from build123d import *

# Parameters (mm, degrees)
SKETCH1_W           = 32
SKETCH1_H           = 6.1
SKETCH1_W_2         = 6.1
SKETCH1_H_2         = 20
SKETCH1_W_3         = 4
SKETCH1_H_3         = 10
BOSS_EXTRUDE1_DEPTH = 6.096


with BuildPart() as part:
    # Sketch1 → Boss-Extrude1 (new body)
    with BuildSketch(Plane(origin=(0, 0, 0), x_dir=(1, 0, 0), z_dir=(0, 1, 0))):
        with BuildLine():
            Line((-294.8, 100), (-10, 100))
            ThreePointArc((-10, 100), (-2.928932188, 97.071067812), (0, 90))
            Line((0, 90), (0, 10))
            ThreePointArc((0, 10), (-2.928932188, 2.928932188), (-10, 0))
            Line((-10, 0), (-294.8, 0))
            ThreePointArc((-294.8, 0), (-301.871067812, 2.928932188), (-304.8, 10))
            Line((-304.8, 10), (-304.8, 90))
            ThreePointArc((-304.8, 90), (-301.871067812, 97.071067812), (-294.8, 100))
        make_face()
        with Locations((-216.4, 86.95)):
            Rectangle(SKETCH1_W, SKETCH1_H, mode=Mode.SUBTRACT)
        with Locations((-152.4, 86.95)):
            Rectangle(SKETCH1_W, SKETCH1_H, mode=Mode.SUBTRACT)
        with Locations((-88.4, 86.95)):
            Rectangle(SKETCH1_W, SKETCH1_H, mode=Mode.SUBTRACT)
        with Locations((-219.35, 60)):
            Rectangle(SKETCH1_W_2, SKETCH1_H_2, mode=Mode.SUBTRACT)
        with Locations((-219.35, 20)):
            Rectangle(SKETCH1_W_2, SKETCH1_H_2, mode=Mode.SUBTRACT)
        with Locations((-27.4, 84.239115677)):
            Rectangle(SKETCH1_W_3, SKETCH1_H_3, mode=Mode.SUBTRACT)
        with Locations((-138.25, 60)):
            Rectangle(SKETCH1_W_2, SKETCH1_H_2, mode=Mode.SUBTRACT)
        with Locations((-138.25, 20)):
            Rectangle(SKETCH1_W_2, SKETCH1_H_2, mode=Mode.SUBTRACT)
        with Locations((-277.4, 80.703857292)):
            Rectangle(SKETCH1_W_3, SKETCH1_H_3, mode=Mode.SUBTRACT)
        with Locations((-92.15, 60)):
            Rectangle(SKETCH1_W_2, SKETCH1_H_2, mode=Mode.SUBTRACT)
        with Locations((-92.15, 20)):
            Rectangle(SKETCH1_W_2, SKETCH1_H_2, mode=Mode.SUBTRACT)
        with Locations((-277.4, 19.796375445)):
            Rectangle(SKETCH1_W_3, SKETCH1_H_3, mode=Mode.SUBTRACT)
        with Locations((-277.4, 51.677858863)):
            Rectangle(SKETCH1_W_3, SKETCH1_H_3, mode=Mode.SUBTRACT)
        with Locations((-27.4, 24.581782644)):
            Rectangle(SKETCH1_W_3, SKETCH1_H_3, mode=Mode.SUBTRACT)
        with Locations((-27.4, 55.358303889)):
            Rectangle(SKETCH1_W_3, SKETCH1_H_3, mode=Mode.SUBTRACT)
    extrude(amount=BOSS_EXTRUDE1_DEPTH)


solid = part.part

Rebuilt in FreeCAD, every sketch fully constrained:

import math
import FreeCAD as App
import Part
import Sketcher
from FreeCAD import Vector


def add_polygon(sketch, points):
    """Adds a closed chain of lines whose ends are joined by coincident constraints."""
    first, n = sketch.GeometryCount, len(points)
    for a, b in zip(points, points[1:] + points[:1]):
        sketch.addGeometry(Part.LineSegment(App.Vector(*a, 0), App.Vector(*b, 0)), False)
    for i in range(n):
        sketch.addConstraint(Sketcher.Constraint("Coincident", first + i, 2, first + (i + 1) % n, 1))

doc = App.newDocument("Part")
body = doc.addObject("PartDesign::Body", "Body")

# Sketch on XZ plane
sketch1 = doc.addObject("Sketcher::SketchObject", "Sketch")
body.addObject(sketch1)
sketch1.AttachmentSupport = (doc.XZ_Plane, [""])
sketch1.MapMode = "FlatFace"
sketch1.addGeometry(Part.LineSegment(Vector(-10, -100, 0), Vector(-294.8, -100, 0)), False)  # 0
sketch1.addGeometry(Part.ArcOfCircle(Part.Circle(Vector(-294.8, -90, 0), Vector(0, 0, 1), 10), math.radians(180), math.radians(270)), False)  # 1
sketch1.addGeometry(Part.LineSegment(Vector(-304.8, -90, 0), Vector(-304.8, -10, 0)), False)  # 2
sketch1.addGeometry(Part.ArcOfCircle(Part.Circle(Vector(-294.8, -10, 0), Vector(0, 0, 1), 10), math.radians(90), math.radians(180)), False)  # 3
sketch1.addGeometry(Part.LineSegment(Vector(-294.8, 0, 0), Vector(-10, 0, 0)), False)  # 4
sketch1.addGeometry(Part.ArcOfCircle(Part.Circle(Vector(-10, -10, 0), Vector(0, 0, 1), 10), math.radians(0), math.radians(90)), False)  # 5
sketch1.addGeometry(Part.LineSegment(Vector(0, -10, 0), Vector(0, -90, 0)), False)  # 6
sketch1.addGeometry(Part.ArcOfCircle(Part.Circle(Vector(-10, -90, 0), Vector(0, 0, 1), 10), math.radians(-90), math.radians(0)), False)  # 7
add_polygon(sketch1, [(-29.4, -19.581783), (-29.4, -29.581783), (-25.4, -29.581783), (-25.4, -19.581783)])  # lines 8-11
add_polygon(sketch1, [(-95.2, -10), (-95.2, -30), (-89.1, -30), (-89.1, -10)])  # lines 12-15
add_polygon(sketch1, [(-141.3, -10), (-141.3, -30), (-135.2, -30), (-135.2, -10)])  # lines 16-19
add_polygon(sketch1, [(-279.4, -14.796375), (-279.4, -24.796375), (-275.4, -24.796375), (-275.4, -14.796375)])  # lines 20-23
add_polygon(sketch1, [(-222.4, -10), (-222.4, -30), (-216.3, -30), (-216.3, -10)])  # lines 24-27
add_polygon(sketch1, [(-29.4, -50.358304), (-29.4, -60.358304), (-25.4, -60.358304), (-25.4, -50.358304)])  # lines 28-31
add_polygon(sketch1, [(-95.2, -50), (-95.2, -70), (-89.1, -70), (-89.1, -50)])  # lines 32-35
add_polygon(sketch1, [(-141.3, -50), (-141.3, -70), (-135.2, -70), (-135.2, -50)])  # lines 36-39
add_polygon(sketch1, [(-29.4, -79.239116), (-29.4, -89.239116), (-25.4, -89.239116), (-25.4, -79.239116)])  # lines 40-43
add_polygon(sketch1, [(-104.4, -83.9), (-104.4, -90), (-72.4, -90), (-72.4, -83.9)])  # lines 44-47
add_polygon(sketch1, [(-279.4, -46.677859), (-279.4, -56.677859), (-275.4, -56.677859), (-275.4, -46.677859)])  # lines 48-51
add_polygon(sketch1, [(-222.4, -50), (-222.4, -70), (-216.3, -70), (-216.3, -50)])  # lines 52-55
add_polygon(sketch1, [(-168.4, -83.9), (-168.4, -90), (-136.4, -90), (-136.4, -83.9)])  # lines 56-59
add_polygon(sketch1, [(-232.4, -83.9), (-232.4, -90), (-200.4, -90), (-200.4, -83.9)])  # lines 60-63
add_polygon(sketch1, [(-279.4, -75.703857), (-279.4, -85.703857), (-275.4, -85.703857), (-275.4, -75.703857)])  # lines 64-67
sketch1.addConstraint(Sketcher.Constraint("Tangent", 0, 2, 1, 2))
sketch1.addConstraint(Sketcher.Constraint("Tangent", 1, 1, 2, 1))
sketch1.addConstraint(Sketcher.Constraint("Tangent", 2, 2, 3, 2))
sketch1.addConstraint(Sketcher.Constraint("Tangent", 3, 1, 4, 1))
sketch1.addConstraint(Sketcher.Constraint("Tangent", 4, 2, 5, 2))
sketch1.addConstraint(Sketcher.Constraint("Tangent", 5, 1, 6, 1))
sketch1.addConstraint(Sketcher.Constraint("Tangent", 6, 2, 7, 2))
sketch1.addConstraint(Sketcher.Constraint("Tangent", 7, 1, 0, 1))
sketch1.addConstraint(Sketcher.Constraint("Horizontal", 0))
sketch1.addConstraint(Sketcher.Constraint("Vertical", 2))
sketch1.addConstraint(Sketcher.Constraint("Horizontal", 4))
sketch1.addConstraint(Sketcher.Constraint("Vertical", 6))
sketch1.addConstraint(Sketcher.Constraint("Vertical", 8))
sketch1.addConstraint(Sketcher.Constraint("Horizontal", 9))
sketch1.addConstraint(Sketcher.Constraint("Vertical", 10))
sketch1.addConstraint(Sketcher.Constraint("Horizontal", 11))
sketch1.addConstraint(Sketcher.Constraint("Vertical", 12))
sketch1.addConstraint(Sketcher.Constraint("Horizontal", 13))
sketch1.addConstraint(Sketcher.Constraint("Vertical", 14))
sketch1.addConstraint(Sketcher.Constraint("Horizontal", 15))
sketch1.addConstraint(Sketcher.Constraint("Vertical", 16))
sketch1.addConstraint(Sketcher.Constraint("Horizontal", 17))
sketch1.addConstraint(Sketcher.Constraint("Vertical", 18))
sketch1.addConstraint(Sketcher.Constraint("Horizontal", 19))
sketch1.addConstraint(Sketcher.Constraint("Vertical", 20))
sketch1.addConstraint(Sketcher.Constraint("Horizontal", 21))
sketch1.addConstraint(Sketcher.Constraint("Vertical", 22))
sketch1.addConstraint(Sketcher.Constraint("Horizontal", 23))
sketch1.addConstraint(Sketcher.Constraint("Vertical", 24))
sketch1.addConstraint(Sketcher.Constraint("Horizontal", 25))
sketch1.addConstraint(Sketcher.Constraint("Vertical", 26))
sketch1.addConstraint(Sketcher.Constraint("Horizontal", 27))
sketch1.addConstraint(Sketcher.Constraint("Vertical", 28))
sketch1.addConstraint(Sketcher.Constraint("Horizontal", 29))
sketch1.addConstraint(Sketcher.Constraint("Vertical", 30))
sketch1.addConstraint(Sketcher.Constraint("Horizontal", 31))
sketch1.addConstraint(Sketcher.Constraint("Vertical", 32))
sketch1.addConstraint(Sketcher.Constraint("Horizontal", 33))
sketch1.addConstraint(Sketcher.Constraint("Vertical", 34))
sketch1.addConstraint(Sketcher.Constraint("Horizontal", 35))
sketch1.addConstraint(Sketcher.Constraint("Vertical", 36))
sketch1.addConstraint(Sketcher.Constraint("Horizontal", 37))
sketch1.addConstraint(Sketcher.Constraint("Vertical", 38))
sketch1.addConstraint(Sketcher.Constraint("Horizontal", 39))
sketch1.addConstraint(Sketcher.Constraint("Vertical", 40))
sketch1.addConstraint(Sketcher.Constraint("Horizontal", 41))
sketch1.addConstraint(Sketcher.Constraint("Vertical", 42))
sketch1.addConstraint(Sketcher.Constraint("Horizontal", 43))
sketch1.addConstraint(Sketcher.Constraint("Vertical", 44))
sketch1.addConstraint(Sketcher.Constraint("Horizontal", 45))
sketch1.addConstraint(Sketcher.Constraint("Vertical", 46))
sketch1.addConstraint(Sketcher.Constraint("Horizontal", 47))
sketch1.addConstraint(Sketcher.Constraint("Vertical", 48))
sketch1.addConstraint(Sketcher.Constraint("Horizontal", 49))
sketch1.addConstraint(Sketcher.Constraint("Vertical", 50))
sketch1.addConstraint(Sketcher.Constraint("Horizontal", 51))
sketch1.addConstraint(Sketcher.Constraint("Vertical", 52))
sketch1.addConstraint(Sketcher.Constraint("Horizontal", 53))
sketch1.addConstraint(Sketcher.Constraint("Vertical", 54))
sketch1.addConstraint(Sketcher.Constraint("Horizontal", 55))
sketch1.addConstraint(Sketcher.Constraint("Vertical", 56))
sketch1.addConstraint(Sketcher.Constraint("Horizontal", 57))
sketch1.addConstraint(Sketcher.Constraint("Vertical", 58))
sketch1.addConstraint(Sketcher.Constraint("Horizontal", 59))
sketch1.addConstraint(Sketcher.Constraint("Vertical", 60))
sketch1.addConstraint(Sketcher.Constraint("Horizontal", 61))
sketch1.addConstraint(Sketcher.Constraint("Vertical", 62))
sketch1.addConstraint(Sketcher.Constraint("Horizontal", 63))
sketch1.addConstraint(Sketcher.Constraint("Vertical", 64))
sketch1.addConstraint(Sketcher.Constraint("Horizontal", 65))
sketch1.addConstraint(Sketcher.Constraint("Vertical", 66))
sketch1.addConstraint(Sketcher.Constraint("Horizontal", 67))
sketch1.addConstraint(Sketcher.Constraint("Equal", 1, 3))
sketch1.addConstraint(Sketcher.Constraint("Equal", 3, 5))
sketch1.addConstraint(Sketcher.Constraint("Equal", 5, 7))
sketch1.addConstraint(Sketcher.Constraint("PointOnObject", 3, 1, -1))
sketch1.addConstraint(Sketcher.Constraint("PointOnObject", 5, 1, -2))
sketch1.addConstraint(Sketcher.Constraint("Horizontal", 5, 1, 14, 2))
sketch1.addConstraint(Sketcher.Constraint("Horizontal", 13, 2, 16, 2))
sketch1.addConstraint(Sketcher.Constraint("Horizontal", 15, 2, 18, 2))
sketch1.addConstraint(Sketcher.Constraint("Horizontal", 17, 2, 24, 2))
sketch1.addConstraint(Sketcher.Constraint("Horizontal", 19, 2, 26, 2))
sketch1.addConstraint(Sketcher.Constraint("Horizontal", 33, 2, 36, 2))
sketch1.addConstraint(Sketcher.Constraint("Horizontal", 35, 2, 38, 2))
sketch1.addConstraint(Sketcher.Constraint("Horizontal", 6, 2, 44, 2))
sketch1.addConstraint(Sketcher.Constraint("Horizontal", 37, 2, 52, 2))
sketch1.addConstraint(Sketcher.Constraint("Horizontal", 39, 2, 54, 2))
sketch1.addConstraint(Sketcher.Constraint("Horizontal", 45, 2, 56, 2))
sketch1.addConstraint(Sketcher.Constraint("Horizontal", 47, 2, 58, 2))
sketch1.addConstraint(Sketcher.Constraint("Horizontal", 57, 2, 60, 2))
sketch1.addConstraint(Sketcher.Constraint("Horizontal", 59, 2, 62, 2))
sketch1.addConstraint(Sketcher.Constraint("Vertical", 11, 2, 28, 2))
sketch1.addConstraint(Sketcher.Constraint("Vertical", 10, 2, 29, 2))
sketch1.addConstraint(Sketcher.Constraint("Vertical", 15, 2, 32, 2))
sketch1.addConstraint(Sketcher.Constraint("Vertical", 14, 2, 33, 2))
sketch1.addConstraint(Sketcher.Constraint("Vertical", 19, 2, 36, 2))
sketch1.addConstraint(Sketcher.Constraint("Vertical", 18, 2, 37, 2))
sketch1.addConstraint(Sketcher.Constraint("Vertical", 31, 2, 40, 2))
sketch1.addConstraint(Sketcher.Constraint("Vertical", 30, 2, 41, 2))
sketch1.addConstraint(Sketcher.Constraint("Vertical", 23, 2, 48, 2))
sketch1.addConstraint(Sketcher.Constraint("Vertical", 22, 2, 49, 2))
sketch1.addConstraint(Sketcher.Constraint("Vertical", 27, 2, 52, 2))
sketch1.addConstraint(Sketcher.Constraint("Vertical", 26, 2, 53, 2))
sketch1.addConstraint(Sketcher.Constraint("Vertical", 51, 2, 64, 2))
sketch1.addConstraint(Sketcher.Constraint("Vertical", 50, 2, 65, 2))
sketch1.addConstraint(Sketcher.Constraint("Equal", 15, 17))
sketch1.addConstraint(Sketcher.Constraint("Equal", 11, 21))
sketch1.addConstraint(Sketcher.Constraint("Equal", 19, 25))
sketch1.addConstraint(Sketcher.Constraint("Equal", 47, 57))
sketch1.addConstraint(Sketcher.Constraint("Equal", 59, 61))
sketch1.addConstraint(Sketcher.Constraint("Equal", 10, 20))
sketch1.addConstraint(Sketcher.Constraint("Equal", 22, 28))
sketch1.addConstraint(Sketcher.Constraint("Equal", 26, 32))
sketch1.addConstraint(Sketcher.Constraint("Equal", 30, 40))
sketch1.addConstraint(Sketcher.Constraint("Equal", 55, 44))
sketch1.addConstraint(Sketcher.Constraint("Equal", 42, 48))
sketch1.addConstraint(Sketcher.Constraint("Equal", 50, 64))
sketch1.addConstraint(Sketcher.Constraint("Radius", 1, 10.0))
sketch1.addConstraint(Sketcher.Constraint("DistanceX", 9, 1, 9, 2, 4.0))
sketch1.addConstraint(Sketcher.Constraint("DistanceX", 45, 1, 45, 2, 32.0))
sketch1.addConstraint(Sketcher.Constraint("DistanceY", 2, 1, 2, 2, 80.0))
sketch1.addConstraint(Sketcher.Constraint("DistanceY", 8, 2, 8, 1, 10.0))
sketch1.addConstraint(Sketcher.Constraint("DistanceY", 12, 2, 12, 1, 20.0))
sketch1.addConstraint(Sketcher.Constraint("DistanceX", 0, 2, 0, 1, 284.8))
sketch1.addConstraint(Sketcher.Constraint("DistanceX", 13, 1, 13, 2, 6.1))
sketch1.addConstraint(Sketcher.Constraint("DistanceY", 32, 2, -1, 1, 70.0))
sketch1.addConstraint(Sketcher.Constraint("DistanceX", 8, 2, -1, 1, 29.4))
sketch1.addConstraint(Sketcher.Constraint("DistanceX", 12, 2, -1, 1, 95.2))
sketch1.addConstraint(Sketcher.Constraint("DistanceX", 16, 2, -1, 1, 141.3))
sketch1.addConstraint(Sketcher.Constraint("DistanceX", 20, 2, -1, 1, 279.4))
sketch1.addConstraint(Sketcher.Constraint("DistanceX", 24, 2, -1, 1, 222.4))
sketch1.addConstraint(Sketcher.Constraint("DistanceX", 44, 2, -1, 1, 104.4))
sketch1.addConstraint(Sketcher.Constraint("DistanceX", 56, 2, -1, 1, 168.4))
sketch1.addConstraint(Sketcher.Constraint("DistanceX", 60, 2, -1, 1, 232.4))
sketch1.addConstraint(Sketcher.Constraint("DistanceY", 48, 2, -1, 1, 56.677859))
sketch1.addConstraint(Sketcher.Constraint("DistanceY", 8, 2, -1, 1, 29.581783))
sketch1.addConstraint(Sketcher.Constraint("DistanceY", 20, 2, -1, 1, 24.796375))
sketch1.addConstraint(Sketcher.Constraint("DistanceY", 28, 2, -1, 1, 60.358304))
sketch1.addConstraint(Sketcher.Constraint("DistanceY", 40, 2, -1, 1, 89.239116))
sketch1.addConstraint(Sketcher.Constraint("DistanceY", 64, 2, -1, 1, 85.703857))
pad1 = doc.addObject("PartDesign::Pad", "Pad")
body.addObject(pad1)
pad1.Profile = sketch1
pad1.Length = 6.096
pad1.Reversed = True

doc.recompute()
